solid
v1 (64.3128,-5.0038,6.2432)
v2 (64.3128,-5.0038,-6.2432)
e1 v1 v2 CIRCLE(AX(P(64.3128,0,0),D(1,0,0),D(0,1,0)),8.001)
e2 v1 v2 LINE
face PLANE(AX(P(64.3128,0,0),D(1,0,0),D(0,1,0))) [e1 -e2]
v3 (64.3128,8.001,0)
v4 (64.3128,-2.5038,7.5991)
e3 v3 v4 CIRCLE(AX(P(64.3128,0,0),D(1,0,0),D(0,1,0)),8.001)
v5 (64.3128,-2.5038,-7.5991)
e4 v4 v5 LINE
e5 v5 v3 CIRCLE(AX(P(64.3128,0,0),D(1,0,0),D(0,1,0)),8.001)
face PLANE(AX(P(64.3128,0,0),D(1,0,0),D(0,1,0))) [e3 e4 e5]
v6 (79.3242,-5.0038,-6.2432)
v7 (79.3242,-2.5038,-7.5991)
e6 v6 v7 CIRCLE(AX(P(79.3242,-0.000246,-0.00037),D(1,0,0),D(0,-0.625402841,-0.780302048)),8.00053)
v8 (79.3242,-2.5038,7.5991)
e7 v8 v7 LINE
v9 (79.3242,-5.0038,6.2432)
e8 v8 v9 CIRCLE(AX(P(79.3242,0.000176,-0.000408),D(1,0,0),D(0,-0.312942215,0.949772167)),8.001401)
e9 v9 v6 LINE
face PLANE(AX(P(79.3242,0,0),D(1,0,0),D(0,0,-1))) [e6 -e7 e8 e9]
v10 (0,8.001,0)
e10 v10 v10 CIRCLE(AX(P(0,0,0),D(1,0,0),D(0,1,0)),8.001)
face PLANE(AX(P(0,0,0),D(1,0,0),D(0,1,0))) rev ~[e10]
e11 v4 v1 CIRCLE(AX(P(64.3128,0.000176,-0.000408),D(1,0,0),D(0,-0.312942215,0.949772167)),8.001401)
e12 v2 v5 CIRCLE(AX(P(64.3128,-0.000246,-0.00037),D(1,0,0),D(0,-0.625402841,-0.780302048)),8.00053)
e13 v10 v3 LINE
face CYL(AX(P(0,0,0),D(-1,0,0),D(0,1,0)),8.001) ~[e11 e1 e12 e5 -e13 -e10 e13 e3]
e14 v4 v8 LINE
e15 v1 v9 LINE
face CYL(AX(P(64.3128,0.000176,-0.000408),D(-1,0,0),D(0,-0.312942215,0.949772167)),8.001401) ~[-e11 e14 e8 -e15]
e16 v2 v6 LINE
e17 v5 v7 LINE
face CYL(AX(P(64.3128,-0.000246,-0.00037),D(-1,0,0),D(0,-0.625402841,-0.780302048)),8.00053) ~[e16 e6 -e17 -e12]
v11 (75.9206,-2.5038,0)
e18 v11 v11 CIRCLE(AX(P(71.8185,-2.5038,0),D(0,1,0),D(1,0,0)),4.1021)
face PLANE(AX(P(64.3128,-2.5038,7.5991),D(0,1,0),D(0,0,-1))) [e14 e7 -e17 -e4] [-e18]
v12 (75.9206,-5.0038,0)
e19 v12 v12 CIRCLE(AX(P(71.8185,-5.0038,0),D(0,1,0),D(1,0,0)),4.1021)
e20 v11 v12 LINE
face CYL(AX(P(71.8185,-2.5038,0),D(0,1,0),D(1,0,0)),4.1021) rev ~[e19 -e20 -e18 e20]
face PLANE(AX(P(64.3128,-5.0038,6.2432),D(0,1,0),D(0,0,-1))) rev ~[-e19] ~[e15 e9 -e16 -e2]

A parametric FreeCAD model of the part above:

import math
import FreeCAD as App
import Part
import Sketcher

V = App.Vector
Q = App.Units.Quantity

doc = App.newDocument("Part")
params = doc.addObject("Spreadsheet::Sheet", "Params")
for row, (alias, value) in enumerate([
    ("sketch1_diameter", "0.63 in"),
    ("pad1_length", "2.532 in"),
    ("sketch2_radius", "0.315 in"),
    ("pad2_length", "0.591 in"),
    ("sketch3_diameter", "0.323 in"),
    ("pocket1_length", "0.591 in"),
], start=1):
    params.set(f"A{row}", alias)
    params.set(f"B{row}", "=" + value)
    params.setAlias(f"B{row}", alias)

body = doc.addObject("PartDesign::Body", "Body")

# Sketch on YZ plane
sketch1 = body.newObject("Sketcher::SketchObject", "Sketch")
sketch1.AttachmentSupport = (doc.getObject("YZ_Plane"), [""])
sketch1.MapMode = "FlatFace"
sketch1.addGeometry(Part.Circle(V(0, 0, 0), V(0, 0, 1), 8), False)
sketch1.addConstraint(Sketcher.Constraint("Coincident", 0, 3, -1, 1))
sketch1.addConstraint(Sketcher.Constraint("Diameter", 0, Q("0.63 in")))
sketch1.setExpression("Constraints[1]", "Params.sketch1_diameter")
pad1 = body.newObject("PartDesign::Pad", "Pad")
pad1.Profile = sketch1
pad1.setExpression("Length", "Params.pad1_length")

# Sketch on YZ plane
sketch2 = body.newObject("Sketcher::SketchObject", "Sketch001")
sketch2.AttachmentSupport = (doc.getObject("YZ_Plane"), [""])
sketch2.MapMode = "FlatFace"
sketch2.AttachmentOffset = App.Placement(V(0, 0, 2.532 * 25.4), App.Rotation())
sketch2.addGeometry(Part.ArcOfCircle(Part.Circle(V(0, 0, 0), V(0, 0, 1), 8), math.radians(108), math.radians(129)), False)
sketch2.addGeometry(Part.LineSegment(V(-5, 6.2, 0), V(-5, -6.2, 0)), False)
sketch2.addGeometry(Part.ArcOfCircle(Part.Circle(V(0, 0, 0), V(0, 0, 1), 8), math.radians(-129), math.radians(-108)), False)
sketch2.addGeometry(Part.LineSegment(V(-2.5, -7.6, 0), V(-2.5, 7.6, 0)), False)
sketch2.addConstraint(Sketcher.Constraint("Coincident", 0, 2, 1, 1))
sketch2.addConstraint(Sketcher.Constraint("Coincident", 1, 2, 2, 1))
sketch2.addConstraint(Sketcher.Constraint("Coincident", 2, 2, 3, 1))
sketch2.addConstraint(Sketcher.Constraint("Coincident", 3, 2, 0, 1))
sketch2.addConstraint(Sketcher.Constraint("Vertical", 1))
sketch2.addConstraint(Sketcher.Constraint("Vertical", 3))
sketch2.addConstraint(Sketcher.Constraint("Coincident", 0, 3, -1, 1))
sketch2.addConstraint(Sketcher.Constraint("Coincident", 2, 3, -1, 1))
sketch2.addConstraint(Sketcher.Constraint("Equal", 0, 2))
sketch2.addConstraint(Sketcher.Constraint("DistanceX", 0, 2, -1, 1, Q("0.197 in")))
sketch2.addConstraint(Sketcher.Constraint("Radius", 0, Q("0.315 in")))
sketch2.addConstraint(Sketcher.Constraint("DistanceX", 1, 2, 2, 2, 2.5))
sketch2.setExpression("Constraints[10]", "Params.sketch2_radius")
pad2 = body.newObject("PartDesign::Pad", "Pad001")
pad2.Profile = sketch2
pad2.setExpression("Length", "Params.pad2_length")

# Sketch on XZ plane
sketch3 = body.newObject("Sketcher::SketchObject", "Sketch002")
sketch3.AttachmentSupport = (doc.getObject("XZ_Plane"), [""])
sketch3.MapMode = "FlatFace"
sketch3.AttachmentOffset = App.Placement(V(0, 0, 2.5038), App.Rotation())
sketch3.addGeometry(Part.Circle(V(71.8, 0, 0), V(0, 0, 1), 4.1), False)
sketch3.addConstraint(Sketcher.Constraint("PointOnObject", 0, 3, -1))
sketch3.addConstraint(Sketcher.Constraint("Diameter", 0, Q("0.323 in")))
sketch3.addConstraint(Sketcher.Constraint("DistanceX", -1, 1, 0, 3, Q("2.8275 in")))
sketch3.setExpression("Constraints[1]", "Params.sketch3_diameter")
pocket1 = body.newObject("PartDesign::Pocket", "Pocket")
pocket1.Profile = sketch3
pocket1.setExpression("Length", "Params.pocket1_length")
pocket1.Reversed = True

doc.recompute()
